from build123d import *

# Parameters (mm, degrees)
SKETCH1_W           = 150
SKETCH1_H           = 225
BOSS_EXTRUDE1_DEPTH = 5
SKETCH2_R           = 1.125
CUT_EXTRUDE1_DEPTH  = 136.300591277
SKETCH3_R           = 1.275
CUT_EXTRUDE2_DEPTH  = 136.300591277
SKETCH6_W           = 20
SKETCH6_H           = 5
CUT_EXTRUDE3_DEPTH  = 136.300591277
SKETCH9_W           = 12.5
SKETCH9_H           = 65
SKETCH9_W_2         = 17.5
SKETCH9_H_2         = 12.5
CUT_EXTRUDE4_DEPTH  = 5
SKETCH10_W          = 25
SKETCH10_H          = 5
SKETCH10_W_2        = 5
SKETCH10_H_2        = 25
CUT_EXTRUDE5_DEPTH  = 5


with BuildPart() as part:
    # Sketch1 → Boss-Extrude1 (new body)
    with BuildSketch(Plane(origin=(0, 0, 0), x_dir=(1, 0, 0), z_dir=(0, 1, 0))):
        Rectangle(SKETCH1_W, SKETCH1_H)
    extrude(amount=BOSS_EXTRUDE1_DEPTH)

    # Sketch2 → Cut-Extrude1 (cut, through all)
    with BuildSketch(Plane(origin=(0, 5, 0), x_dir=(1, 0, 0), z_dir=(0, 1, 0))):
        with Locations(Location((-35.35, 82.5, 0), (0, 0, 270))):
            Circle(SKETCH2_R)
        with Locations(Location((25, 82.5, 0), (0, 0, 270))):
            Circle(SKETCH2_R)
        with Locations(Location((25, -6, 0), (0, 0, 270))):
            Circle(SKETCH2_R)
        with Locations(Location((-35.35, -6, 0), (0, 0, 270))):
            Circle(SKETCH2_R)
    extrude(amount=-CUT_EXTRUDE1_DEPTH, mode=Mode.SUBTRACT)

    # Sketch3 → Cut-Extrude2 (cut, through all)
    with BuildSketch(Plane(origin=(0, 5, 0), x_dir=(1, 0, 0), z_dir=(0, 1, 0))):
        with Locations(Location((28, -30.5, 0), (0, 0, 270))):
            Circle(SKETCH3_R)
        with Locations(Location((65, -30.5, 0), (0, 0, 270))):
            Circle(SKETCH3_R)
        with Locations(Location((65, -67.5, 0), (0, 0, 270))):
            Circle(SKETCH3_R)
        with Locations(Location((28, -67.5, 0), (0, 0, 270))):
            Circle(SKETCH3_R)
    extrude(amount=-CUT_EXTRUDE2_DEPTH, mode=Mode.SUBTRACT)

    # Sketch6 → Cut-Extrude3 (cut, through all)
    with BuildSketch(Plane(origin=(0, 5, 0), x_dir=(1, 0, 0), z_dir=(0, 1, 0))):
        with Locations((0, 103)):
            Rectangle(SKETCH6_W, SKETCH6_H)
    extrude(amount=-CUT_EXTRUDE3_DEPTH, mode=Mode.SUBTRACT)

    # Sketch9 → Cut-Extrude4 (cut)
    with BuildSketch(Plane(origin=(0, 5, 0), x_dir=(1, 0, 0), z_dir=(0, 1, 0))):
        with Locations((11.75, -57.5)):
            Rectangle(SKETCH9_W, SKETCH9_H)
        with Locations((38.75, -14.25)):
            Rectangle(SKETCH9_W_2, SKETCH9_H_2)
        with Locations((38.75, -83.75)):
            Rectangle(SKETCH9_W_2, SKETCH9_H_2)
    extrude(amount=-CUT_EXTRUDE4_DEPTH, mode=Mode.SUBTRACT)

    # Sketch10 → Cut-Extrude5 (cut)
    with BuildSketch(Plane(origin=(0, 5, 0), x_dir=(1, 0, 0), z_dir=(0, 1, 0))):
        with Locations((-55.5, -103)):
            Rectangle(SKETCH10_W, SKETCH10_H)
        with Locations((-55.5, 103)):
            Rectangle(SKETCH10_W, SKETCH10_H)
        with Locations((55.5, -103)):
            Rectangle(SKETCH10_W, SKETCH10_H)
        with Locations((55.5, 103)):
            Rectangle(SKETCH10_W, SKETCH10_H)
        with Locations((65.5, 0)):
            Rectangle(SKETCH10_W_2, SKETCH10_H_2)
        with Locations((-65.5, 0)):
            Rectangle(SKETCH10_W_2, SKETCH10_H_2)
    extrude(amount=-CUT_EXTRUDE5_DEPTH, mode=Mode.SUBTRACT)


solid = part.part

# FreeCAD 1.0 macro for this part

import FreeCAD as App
import Part
import Sketcher
from FreeCAD import Vector

doc = App.newDocument("Part")
body = doc.addObject("PartDesign::Body", "Body")

# Sketch on XZ plane
sketch1 = body.newObject("Sketcher::SketchObject", "Sketch")
sketch1.AttachmentSupport = (doc.getObject("XZ_Plane"), [""])
sketch1.MapMode = "FlatFace"
sketch1.addGeometry([
    Part.LineSegment(Vector(-75, -112.5, 0), Vector(-75, 112.5, 0)),
    Part.LineSegment(Vector(-75, 112.5, 0), Vector(75, 112.5, 0)),
    Part.LineSegment(Vector(75, 112.5, 0), Vector(75, -112.5, 0)),
    Part.LineSegment(Vector(75, -112.5, 0), Vector(-75, -112.5, 0)),
], False)
sketch1.addConstraint([
    Sketcher.Constraint("Coincident", 0, 2, 1, 1),
    Sketcher.Constraint("Coincident", 1, 2, 2, 1),
    Sketcher.Constraint("Coincident", 2, 2, 3, 1),
    Sketcher.Constraint("Coincident", 3, 2, 0, 1),
    Sketcher.Constraint("Vertical", 0),
    Sketcher.Constraint("Horizontal", 1),
    Sketcher.Constraint("Vertical", 2),
    Sketcher.Constraint("Horizontal", 3),
    Sketcher.Constraint("Symmetric", 0, 2, 2, 2, -1, 1),
    Sketcher.Constraint("DistanceX", 1, 1, 1, 2, 150.0),
    Sketcher.Constraint("DistanceY", 0, 1, 0, 2, 225.0),
])
pad1 = body.newObject("PartDesign::Pad", "Pad")
pad1.Profile = sketch1
pad1.Length = 5
pad1.Reversed = True

# Sketch on XZ plane
sketch2 = body.newObject("Sketcher::SketchObject", "Sketch001")
sketch2.AttachmentSupport = (doc.getObject("XZ_Plane"), [""])
sketch2.MapMode = "FlatFace"
sketch2.AttachmentOffset = App.Placement(Vector(0, 0, -5), App.Rotation())
sketch2.addGeometry([
    Part.Circle(Vector(-35.35, -82.5, 0), Vector(0, 0, 1), 1.125),
    Part.Circle(Vector(25, -82.5, 0), Vector(0, 0, 1), 1.125),
    Part.Circle(Vector(25, 6, 0), Vector(0, 0, 1), 1.125),
    Part.Circle(Vector(-35.35, 6, 0), Vector(0, 0, 1), 1.125),
], False)
sketch2.addConstraint([
    Sketcher.Constraint("Equal", 0, 1),
    Sketcher.Constraint("Equal", 1, 2),
    Sketcher.Constraint("Equal", 2, 3),
    Sketcher.Constraint("Horizontal", 0, 3, 1, 3),
    Sketcher.Constraint("Horizontal", 2, 3, 3, 3),
    Sketcher.Constraint("Vertical", 1, 3, 2, 3),
    Sketcher.Constraint("Vertical", 0, 3, 3, 3),
    Sketcher.Constraint("Diameter", 0, 2.25),
    Sketcher.Constraint("DistanceX", -1, 1, 1, 3, 25.0),
    Sketcher.Constraint("DistanceY", -1, 1, 2, 3, 6.0),
    Sketcher.Constraint("DistanceY", 0, 3, -1, 1, 82.5),
    Sketcher.Constraint("DistanceX", 0, 3, -1, 1, 35.35),
])
pocket1 = body.newObject("PartDesign::Pocket", "Pocket")
pocket1.Profile = sketch2
pocket1.Type = "ThroughAll"
pocket1.Reversed = True

# Sketch on XZ plane
sketch3 = body.newObject("Sketcher::SketchObject", "Sketch002")
sketch3.AttachmentSupport = (doc.getObject("XZ_Plane"), [""])
sketch3.MapMode = "FlatFace"
sketch3.AttachmentOffset = App.Placement(Vector(0, 0, -5), App.Rotation())
sketch3.addGeometry([
    Part.Circle(Vector(28, 30.5, 0), Vector(0, 0, 1), 1.275),
    Part.Circle(Vector(65, 30.5, 0), Vector(0, 0, 1), 1.275),
    Part.Circle(Vector(65, 67.5, 0), Vector(0, 0, 1), 1.275),
    Part.Circle(Vector(28, 67.5, 0), Vector(0, 0, 1), 1.275),
], False)
sketch3.addConstraint([
    Sketcher.Constraint("Equal", 0, 1),
    Sketcher.Constraint("Equal", 1, 2),
    Sketcher.Constraint("Equal", 2, 3),
    Sketcher.Constraint("Horizontal", 0, 3, 1, 3),
    Sketcher.Constraint("Horizontal", 2, 3, 3, 3),
    Sketcher.Constraint("Vertical", 1, 3, 2, 3),
    Sketcher.Constraint("Vertical", 0, 3, 3, 3),
    Sketcher.Constraint("Diameter", 0, 2.55),
    Sketcher.Constraint("DistanceX", -1, 1, 0, 3, 28.0),
    Sketcher.Constraint("DistanceX", -1, 1, 1, 3, 65.0),
    Sketcher.Constraint("DistanceY", 1, 3, 2, 3, 37.0),
    Sketcher.Constraint("DistanceY", -1, 1, 0, 3, 30.5),
])
pocket2 = body.newObject("PartDesign::Pocket", "Pocket001")
pocket2.Profile = sketch3
pocket2.Type = "ThroughAll"
pocket2.Reversed = True

# Sketch on XZ plane
sketch4 = body.newObject("Sketcher::SketchObject", "Sketch003")
sketch4.AttachmentSupport = (doc.getObject("XZ_Plane"), [""])
sketch4.MapMode = "FlatFace"
sketch4.AttachmentOffset = App.Placement(Vector(0, 0, -5), App.Rotation())
sketch4.addGeometry([
    Part.LineSegment(Vector(-10, -105.5, 0), Vector(-10, -100.5, 0)),
    Part.LineSegment(Vector(-10, -100.5, 0), Vector(10, -100.5, 0)),
    Part.LineSegment(Vector(10, -100.5, 0), Vector(10, -105.5, 0)),
    Part.LineSegment(Vector(10, -105.5, 0), Vector(-10, -105.5, 0)),
], False)
sketch4.addConstraint([
    Sketcher.Constraint("Coincident", 0, 2, 1, 1),
    Sketcher.Constraint("Coincident", 1, 2, 2, 1),
    Sketcher.Constraint("Coincident", 2, 2, 3, 1),
    Sketcher.Constraint("Coincident", 3, 2, 0, 1),
    Sketcher.Constraint("Vertical", 0),
    Sketcher.Constraint("Horizontal", 1),
    Sketcher.Constraint("Vertical", 2),
    Sketcher.Constraint("Horizontal", 3),
    Sketcher.Constraint("DistanceX", 1, 1, 1, 2, 20.0),
    Sketcher.Constraint("DistanceY", 0, 1, 0, 2, 5.0),
    Sketcher.Constraint("DistanceX", 0, 2, -1, 1, 10.0),
    Sketcher.Constraint("DistanceY", 0, 2, -1, 1, 100.5),
])
pocket3 = body.newObject("PartDesign::Pocket", "Pocket002")
pocket3.Profile = sketch4
pocket3.Type = "ThroughAll"
pocket3.Reversed = True

# Sketch on XZ plane
sketch5 = body.newObject("Sketcher::SketchObject", "Sketch004")
sketch5.AttachmentSupport = (doc.getObject("XZ_Plane"), [""])
sketch5.MapMode = "FlatFace"
sketch5.AttachmentOffset = App.Placement(Vector(0, 0, -5), App.Rotation())
sketch5.addGeometry([
    Part.LineSegment(Vector(5.5, 25, 0), Vector(5.5, 90, 0)),  # 0
    Part.LineSegment(Vector(5.5, 90, 0), Vector(18, 90, 0)),  # 1
    Part.LineSegment(Vector(18, 90, 0), Vector(18, 25, 0)),  # 2
    Part.LineSegment(Vector(18, 25, 0), Vector(5.5, 25, 0)),  # 3
    Part.LineSegment(Vector(30, 8, 0), Vector(30, 20.5, 0)),  # 4
    Part.LineSegment(Vector(30, 20.5, 0), Vector(47.5, 20.5, 0)),  # 5
    Part.LineSegment(Vector(47.5, 20.5, 0), Vector(47.5, 8, 0)),  # 6
    Part.LineSegment(Vector(47.5, 8, 0), Vector(30, 8, 0)),  # 7
    Part.LineSegment(Vector(30, 77.5, 0), Vector(30, 90, 0)),  # 8
    Part.LineSegment(Vector(30, 90, 0), Vector(47.5, 90, 0)),  # 9
    Part.LineSegment(Vector(47.5, 90, 0), Vector(47.5, 77.5, 0)),  # 10
    Part.LineSegment(Vector(47.5, 77.5, 0), Vector(30, 77.5, 0)),  # 11
], False)
sketch5.addConstraint([
    Sketcher.Constraint("Coincident", 0, 2, 1, 1),
    Sketcher.Constraint("Coincident", 1, 2, 2, 1),
    Sketcher.Constraint("Coincident", 2, 2, 3, 1),
    Sketcher.Constraint("Coincident", 3, 2, 0, 1),
    Sketcher.Constraint("Coincident", 4, 2, 5, 1),
    Sketcher.Constraint("Coincident", 5, 2, 6, 1),
    Sketcher.Constraint("Coincident", 6, 2, 7, 1),
    Sketcher.Constraint("Coincident", 7, 2, 4, 1),
    Sketcher.Constraint("Coincident", 8, 2, 9, 1),
    Sketcher.Constraint("Coincident", 9, 2, 10, 1),
    Sketcher.Constraint("Coincident", 10, 2, 11, 1),
    Sketcher.Constraint("Coincident", 11, 2, 8, 1),
    Sketcher.Constraint("Vertical", 0),
    Sketcher.Constraint("Horizontal", 1),
    Sketcher.Constraint("Vertical", 2),
    Sketcher.Constraint("Horizontal", 3),
    Sketcher.Constraint("Vertical", 4),
    Sketcher.Constraint("Horizontal", 5),
    Sketcher.Constraint("Vertical", 6),
    Sketcher.Constraint("Horizontal", 7),
    Sketcher.Constraint("Vertical", 8),
    Sketcher.Constraint("Horizontal", 9),
    Sketcher.Constraint("Vertical", 10),
    Sketcher.Constraint("Horizontal", 11),
    Sketcher.Constraint("Horizontal", 1, 2, 8, 2),
    Sketcher.Constraint("Vertical", 7, 2, 8, 2),
    Sketcher.Constraint("Vertical", 6, 2, 9, 2),
    Sketcher.Constraint("Equal", 3, 4),
    Sketcher.Constraint("Equal", 6, 8),
    Sketcher.Constraint("DistanceY", 0, 1, 0, 2, 65.0),
    Sketcher.Constraint("DistanceX", 1, 1, 1, 2, 12.5),
    Sketcher.Constraint("DistanceX", 5, 1, 5, 2, 17.5),
    Sketcher.Constraint("DistanceY", -1, 1, 0, 2, 90.0),
    Sketcher.Constraint("DistanceX", -1, 1, 1, 2, 18.0),
    Sketcher.Constraint("DistanceX", -1, 1, 4, 2, 30.0),
    Sketcher.Constraint("DistanceY", -1, 1, 6, 2, 8.0),
])
pocket4 = body.newObject("PartDesign::Pocket", "Pocket003")
pocket4.Profile = sketch5
pocket4.Length = 5
pocket4.Reversed = True

# Sketch on XZ plane
sketch6 = body.newObject("Sketcher::SketchObject", "Sketch005")
sketch6.AttachmentSupport = (doc.getObject("XZ_Plane"), [""])
sketch6.MapMode = "FlatFace"
sketch6.AttachmentOffset = App.Placement(Vector(0, 0, -5), App.Rotation())
sketch6.addGeometry([
    Part.LineSegment(Vector(-68, 100.5, 0), Vector(-68, 105.5, 0)),  # 0
    Part.LineSegment(Vector(-68, 105.5, 0), Vector(-43, 105.5, 0)),  # 1
    Part.LineSegment(Vector(-43, 105.5, 0), Vector(-43, 100.5, 0)),  # 2
    Part.LineSegment(Vector(-43, 100.5, 0), Vector(-68, 100.5, 0)),  # 3
    Part.LineSegment(Vector(-68, -105.5, 0), Vector(-68, -100.5, 0)),  # 4
    Part.LineSegment(Vector(-68, -100.5, 0), Vector(-43, -100.5, 0)),  # 5
    Part.LineSegment(Vector(-43, -100.5, 0), Vector(-43, -105.5, 0)),  # 6
    Part.LineSegment(Vector(-43, -105.5, 0), Vector(-68, -105.5, 0)),  # 7
    Part.LineSegment(Vector(43, 100.5, 0), Vector(43, 105.5, 0)),  # 8
    Part.LineSegment(Vector(43, 105.5, 0), Vector(68, 105.5, 0)),  # 9
    Part.LineSegment(Vector(68, 105.5, 0), Vector(68, 100.5, 0)),  # 10
    Part.LineSegment(Vector(68, 100.5, 0), Vector(43, 100.5, 0)),  # 11
    Part.LineSegment(Vector(43, -105.5, 0), Vector(43, -100.5, 0)),  # 12
    Part.LineSegment(Vector(43, -100.5, 0), Vector(68, -100.5, 0)),  # 13
    Part.LineSegment(Vector(68, -100.5, 0), Vector(68, -105.5, 0)),  # 14
    Part.LineSegment(Vector(68, -105.5, 0), Vector(43, -105.5, 0)),  # 15
    Part.LineSegment(Vector(63, -12.5, 0), Vector(63, 12.5, 0)),  # 16
    Part.LineSegment(Vector(63, 12.5, 0), Vector(68, 12.5, 0)),  # 17
    Part.LineSegment(Vector(68, 12.5, 0), Vector(68, -12.5, 0)),  # 18
    Part.LineSegment(Vector(68, -12.5, 0), Vector(63, -12.5, 0)),  # 19
    Part.LineSegment(Vector(-68, -12.5, 0), Vector(-68, 12.5, 0)),  # 20
    Part.LineSegment(Vector(-68, 12.5, 0), Vector(-63, 12.5, 0)),  # 21
    Part.LineSegment(Vector(-63, 12.5, 0), Vector(-63, -12.5, 0)),  # 22
    Part.LineSegment(Vector(-63, -12.5, 0), Vector(-68, -12.5, 0)),  # 23
], False)
sketch6.addConstraint([
    Sketcher.Constraint("Coincident", 0, 2, 1, 1),
    Sketcher.Constraint("Coincident", 1, 2, 2, 1),
    Sketcher.Constraint("Coincident", 2, 2, 3, 1),
    Sketcher.Constraint("Coincident", 3, 2, 0, 1),
    Sketcher.Constraint("Coincident", 4, 2, 5, 1),
    Sketcher.Constraint("Coincident", 5, 2, 6, 1),
    Sketcher.Constraint("Coincident", 6, 2, 7, 1),
    Sketcher.Constraint("Coincident", 7, 2, 4, 1),
    Sketcher.Constraint("Coincident", 8, 2, 9, 1),
    Sketcher.Constraint("Coincident", 9, 2, 10, 1),
    Sketcher.Constraint("Coincident", 10, 2, 11, 1),
    Sketcher.Constraint("Coincident", 11, 2, 8, 1),
    Sketcher.Constraint("Coincident", 12, 2, 13, 1),
    Sketcher.Constraint("Coincident", 13, 2, 14, 1),
    Sketcher.Constraint("Coincident", 14, 2, 15, 1),
    Sketcher.Constraint("Coincident", 15, 2, 12, 1),
    Sketcher.Constraint("Coincident", 16, 2, 17, 1),
    Sketcher.Constraint("Coincident", 17, 2, 18, 1),
    Sketcher.Constraint("Coincident", 18, 2, 19, 1),
    Sketcher.Constraint("Coincident", 19, 2, 16, 1),
    Sketcher.Constraint("Coincident", 20, 2, 21, 1),
    Sketcher.Constraint("Coincident", 21, 2, 22, 1),
    Sketcher.Constraint("Coincident", 22, 2, 23, 1),
    Sketcher.Constraint("Coincident", 23, 2, 20, 1),
    Sketcher.Constraint("Vertical", 0),
    Sketcher.Constraint("Horizontal", 1),
    Sketcher.Constraint("Vertical", 2),
    Sketcher.Constraint("Horizontal", 3),
    Sketcher.Constraint("Vertical", 4),
    Sketcher.Constraint("Horizontal", 5),
    Sketcher.Constraint("Vertical", 6),
    Sketcher.Constraint("Horizontal", 7),
    Sketcher.Constraint("Vertical", 8),
    Sketcher.Constraint("Horizontal", 9),
    Sketcher.Constraint("Vertical", 10),
    Sketcher.Constraint("Horizontal", 11),
    Sketcher.Constraint("Vertical", 12),
    Sketcher.Constraint("Horizontal", 13),
    Sketcher.Constraint("Vertical", 14),
    Sketcher.Constraint("Horizontal", 15),
    Sketcher.Constraint("Vertical", 16),
    Sketcher.Constraint("Horizontal", 17),
    Sketcher.Constraint("Vertical", 18),
    Sketcher.Constraint("Horizontal", 19),
    Sketcher.Constraint("Vertical", 20),
    Sketcher.Constraint("Horizontal", 21),
    Sketcher.Constraint("Vertical", 22),
    Sketcher.Constraint("Horizontal", 23),
    Sketcher.Constraint("Symmetric", 6, 2, 8, 2, -1, 1),
    Sketcher.Constraint("Symmetric", 4, 2, 10, 2, -1, 1),
    Sketcher.Constraint("Symmetric", 2, 2, 12, 2, -1, 1),
    Sketcher.Constraint("Symmetric", 0, 2, 14, 2, -1, 1),
    Sketcher.Constraint("Symmetric", 18, 2, 20, 2, -1, 1),
    Sketcher.Constraint("Symmetric", 16, 2, 22, 2, -1, 1),
    Sketcher.Constraint("Symmetric", 1, 2, 8, 2, -2),
    Sketcher.Constraint("Symmetric", 3, 2, 10, 2, -2),
    Sketcher.Constraint("Horizontal", 17, 2, 20, 2),
    Sketcher.Constraint("Vertical", 14, 2, 17, 2),
    Sketcher.Constraint("Equal", 23, 0),
    Sketcher.Constraint("Equal", 15, 16),
    Sketcher.Constraint("DistanceX", 1, 1, 1, 2, 25.0),
    Sketcher.Constraint("DistanceX", 17, 1, 17, 2, 5.0),
    Sketcher.Constraint("DistanceX", 0, 2, -1, 1, 68.0),
    Sketcher.Constraint("DistanceY", 4, 2, 3, 2, 201.0),
])
pocket5 = body.newObject("PartDesign::Pocket", "Pocket004")
pocket5.Profile = sketch6
pocket5.Length = 5
pocket5.Reversed = True

doc.recompute()
